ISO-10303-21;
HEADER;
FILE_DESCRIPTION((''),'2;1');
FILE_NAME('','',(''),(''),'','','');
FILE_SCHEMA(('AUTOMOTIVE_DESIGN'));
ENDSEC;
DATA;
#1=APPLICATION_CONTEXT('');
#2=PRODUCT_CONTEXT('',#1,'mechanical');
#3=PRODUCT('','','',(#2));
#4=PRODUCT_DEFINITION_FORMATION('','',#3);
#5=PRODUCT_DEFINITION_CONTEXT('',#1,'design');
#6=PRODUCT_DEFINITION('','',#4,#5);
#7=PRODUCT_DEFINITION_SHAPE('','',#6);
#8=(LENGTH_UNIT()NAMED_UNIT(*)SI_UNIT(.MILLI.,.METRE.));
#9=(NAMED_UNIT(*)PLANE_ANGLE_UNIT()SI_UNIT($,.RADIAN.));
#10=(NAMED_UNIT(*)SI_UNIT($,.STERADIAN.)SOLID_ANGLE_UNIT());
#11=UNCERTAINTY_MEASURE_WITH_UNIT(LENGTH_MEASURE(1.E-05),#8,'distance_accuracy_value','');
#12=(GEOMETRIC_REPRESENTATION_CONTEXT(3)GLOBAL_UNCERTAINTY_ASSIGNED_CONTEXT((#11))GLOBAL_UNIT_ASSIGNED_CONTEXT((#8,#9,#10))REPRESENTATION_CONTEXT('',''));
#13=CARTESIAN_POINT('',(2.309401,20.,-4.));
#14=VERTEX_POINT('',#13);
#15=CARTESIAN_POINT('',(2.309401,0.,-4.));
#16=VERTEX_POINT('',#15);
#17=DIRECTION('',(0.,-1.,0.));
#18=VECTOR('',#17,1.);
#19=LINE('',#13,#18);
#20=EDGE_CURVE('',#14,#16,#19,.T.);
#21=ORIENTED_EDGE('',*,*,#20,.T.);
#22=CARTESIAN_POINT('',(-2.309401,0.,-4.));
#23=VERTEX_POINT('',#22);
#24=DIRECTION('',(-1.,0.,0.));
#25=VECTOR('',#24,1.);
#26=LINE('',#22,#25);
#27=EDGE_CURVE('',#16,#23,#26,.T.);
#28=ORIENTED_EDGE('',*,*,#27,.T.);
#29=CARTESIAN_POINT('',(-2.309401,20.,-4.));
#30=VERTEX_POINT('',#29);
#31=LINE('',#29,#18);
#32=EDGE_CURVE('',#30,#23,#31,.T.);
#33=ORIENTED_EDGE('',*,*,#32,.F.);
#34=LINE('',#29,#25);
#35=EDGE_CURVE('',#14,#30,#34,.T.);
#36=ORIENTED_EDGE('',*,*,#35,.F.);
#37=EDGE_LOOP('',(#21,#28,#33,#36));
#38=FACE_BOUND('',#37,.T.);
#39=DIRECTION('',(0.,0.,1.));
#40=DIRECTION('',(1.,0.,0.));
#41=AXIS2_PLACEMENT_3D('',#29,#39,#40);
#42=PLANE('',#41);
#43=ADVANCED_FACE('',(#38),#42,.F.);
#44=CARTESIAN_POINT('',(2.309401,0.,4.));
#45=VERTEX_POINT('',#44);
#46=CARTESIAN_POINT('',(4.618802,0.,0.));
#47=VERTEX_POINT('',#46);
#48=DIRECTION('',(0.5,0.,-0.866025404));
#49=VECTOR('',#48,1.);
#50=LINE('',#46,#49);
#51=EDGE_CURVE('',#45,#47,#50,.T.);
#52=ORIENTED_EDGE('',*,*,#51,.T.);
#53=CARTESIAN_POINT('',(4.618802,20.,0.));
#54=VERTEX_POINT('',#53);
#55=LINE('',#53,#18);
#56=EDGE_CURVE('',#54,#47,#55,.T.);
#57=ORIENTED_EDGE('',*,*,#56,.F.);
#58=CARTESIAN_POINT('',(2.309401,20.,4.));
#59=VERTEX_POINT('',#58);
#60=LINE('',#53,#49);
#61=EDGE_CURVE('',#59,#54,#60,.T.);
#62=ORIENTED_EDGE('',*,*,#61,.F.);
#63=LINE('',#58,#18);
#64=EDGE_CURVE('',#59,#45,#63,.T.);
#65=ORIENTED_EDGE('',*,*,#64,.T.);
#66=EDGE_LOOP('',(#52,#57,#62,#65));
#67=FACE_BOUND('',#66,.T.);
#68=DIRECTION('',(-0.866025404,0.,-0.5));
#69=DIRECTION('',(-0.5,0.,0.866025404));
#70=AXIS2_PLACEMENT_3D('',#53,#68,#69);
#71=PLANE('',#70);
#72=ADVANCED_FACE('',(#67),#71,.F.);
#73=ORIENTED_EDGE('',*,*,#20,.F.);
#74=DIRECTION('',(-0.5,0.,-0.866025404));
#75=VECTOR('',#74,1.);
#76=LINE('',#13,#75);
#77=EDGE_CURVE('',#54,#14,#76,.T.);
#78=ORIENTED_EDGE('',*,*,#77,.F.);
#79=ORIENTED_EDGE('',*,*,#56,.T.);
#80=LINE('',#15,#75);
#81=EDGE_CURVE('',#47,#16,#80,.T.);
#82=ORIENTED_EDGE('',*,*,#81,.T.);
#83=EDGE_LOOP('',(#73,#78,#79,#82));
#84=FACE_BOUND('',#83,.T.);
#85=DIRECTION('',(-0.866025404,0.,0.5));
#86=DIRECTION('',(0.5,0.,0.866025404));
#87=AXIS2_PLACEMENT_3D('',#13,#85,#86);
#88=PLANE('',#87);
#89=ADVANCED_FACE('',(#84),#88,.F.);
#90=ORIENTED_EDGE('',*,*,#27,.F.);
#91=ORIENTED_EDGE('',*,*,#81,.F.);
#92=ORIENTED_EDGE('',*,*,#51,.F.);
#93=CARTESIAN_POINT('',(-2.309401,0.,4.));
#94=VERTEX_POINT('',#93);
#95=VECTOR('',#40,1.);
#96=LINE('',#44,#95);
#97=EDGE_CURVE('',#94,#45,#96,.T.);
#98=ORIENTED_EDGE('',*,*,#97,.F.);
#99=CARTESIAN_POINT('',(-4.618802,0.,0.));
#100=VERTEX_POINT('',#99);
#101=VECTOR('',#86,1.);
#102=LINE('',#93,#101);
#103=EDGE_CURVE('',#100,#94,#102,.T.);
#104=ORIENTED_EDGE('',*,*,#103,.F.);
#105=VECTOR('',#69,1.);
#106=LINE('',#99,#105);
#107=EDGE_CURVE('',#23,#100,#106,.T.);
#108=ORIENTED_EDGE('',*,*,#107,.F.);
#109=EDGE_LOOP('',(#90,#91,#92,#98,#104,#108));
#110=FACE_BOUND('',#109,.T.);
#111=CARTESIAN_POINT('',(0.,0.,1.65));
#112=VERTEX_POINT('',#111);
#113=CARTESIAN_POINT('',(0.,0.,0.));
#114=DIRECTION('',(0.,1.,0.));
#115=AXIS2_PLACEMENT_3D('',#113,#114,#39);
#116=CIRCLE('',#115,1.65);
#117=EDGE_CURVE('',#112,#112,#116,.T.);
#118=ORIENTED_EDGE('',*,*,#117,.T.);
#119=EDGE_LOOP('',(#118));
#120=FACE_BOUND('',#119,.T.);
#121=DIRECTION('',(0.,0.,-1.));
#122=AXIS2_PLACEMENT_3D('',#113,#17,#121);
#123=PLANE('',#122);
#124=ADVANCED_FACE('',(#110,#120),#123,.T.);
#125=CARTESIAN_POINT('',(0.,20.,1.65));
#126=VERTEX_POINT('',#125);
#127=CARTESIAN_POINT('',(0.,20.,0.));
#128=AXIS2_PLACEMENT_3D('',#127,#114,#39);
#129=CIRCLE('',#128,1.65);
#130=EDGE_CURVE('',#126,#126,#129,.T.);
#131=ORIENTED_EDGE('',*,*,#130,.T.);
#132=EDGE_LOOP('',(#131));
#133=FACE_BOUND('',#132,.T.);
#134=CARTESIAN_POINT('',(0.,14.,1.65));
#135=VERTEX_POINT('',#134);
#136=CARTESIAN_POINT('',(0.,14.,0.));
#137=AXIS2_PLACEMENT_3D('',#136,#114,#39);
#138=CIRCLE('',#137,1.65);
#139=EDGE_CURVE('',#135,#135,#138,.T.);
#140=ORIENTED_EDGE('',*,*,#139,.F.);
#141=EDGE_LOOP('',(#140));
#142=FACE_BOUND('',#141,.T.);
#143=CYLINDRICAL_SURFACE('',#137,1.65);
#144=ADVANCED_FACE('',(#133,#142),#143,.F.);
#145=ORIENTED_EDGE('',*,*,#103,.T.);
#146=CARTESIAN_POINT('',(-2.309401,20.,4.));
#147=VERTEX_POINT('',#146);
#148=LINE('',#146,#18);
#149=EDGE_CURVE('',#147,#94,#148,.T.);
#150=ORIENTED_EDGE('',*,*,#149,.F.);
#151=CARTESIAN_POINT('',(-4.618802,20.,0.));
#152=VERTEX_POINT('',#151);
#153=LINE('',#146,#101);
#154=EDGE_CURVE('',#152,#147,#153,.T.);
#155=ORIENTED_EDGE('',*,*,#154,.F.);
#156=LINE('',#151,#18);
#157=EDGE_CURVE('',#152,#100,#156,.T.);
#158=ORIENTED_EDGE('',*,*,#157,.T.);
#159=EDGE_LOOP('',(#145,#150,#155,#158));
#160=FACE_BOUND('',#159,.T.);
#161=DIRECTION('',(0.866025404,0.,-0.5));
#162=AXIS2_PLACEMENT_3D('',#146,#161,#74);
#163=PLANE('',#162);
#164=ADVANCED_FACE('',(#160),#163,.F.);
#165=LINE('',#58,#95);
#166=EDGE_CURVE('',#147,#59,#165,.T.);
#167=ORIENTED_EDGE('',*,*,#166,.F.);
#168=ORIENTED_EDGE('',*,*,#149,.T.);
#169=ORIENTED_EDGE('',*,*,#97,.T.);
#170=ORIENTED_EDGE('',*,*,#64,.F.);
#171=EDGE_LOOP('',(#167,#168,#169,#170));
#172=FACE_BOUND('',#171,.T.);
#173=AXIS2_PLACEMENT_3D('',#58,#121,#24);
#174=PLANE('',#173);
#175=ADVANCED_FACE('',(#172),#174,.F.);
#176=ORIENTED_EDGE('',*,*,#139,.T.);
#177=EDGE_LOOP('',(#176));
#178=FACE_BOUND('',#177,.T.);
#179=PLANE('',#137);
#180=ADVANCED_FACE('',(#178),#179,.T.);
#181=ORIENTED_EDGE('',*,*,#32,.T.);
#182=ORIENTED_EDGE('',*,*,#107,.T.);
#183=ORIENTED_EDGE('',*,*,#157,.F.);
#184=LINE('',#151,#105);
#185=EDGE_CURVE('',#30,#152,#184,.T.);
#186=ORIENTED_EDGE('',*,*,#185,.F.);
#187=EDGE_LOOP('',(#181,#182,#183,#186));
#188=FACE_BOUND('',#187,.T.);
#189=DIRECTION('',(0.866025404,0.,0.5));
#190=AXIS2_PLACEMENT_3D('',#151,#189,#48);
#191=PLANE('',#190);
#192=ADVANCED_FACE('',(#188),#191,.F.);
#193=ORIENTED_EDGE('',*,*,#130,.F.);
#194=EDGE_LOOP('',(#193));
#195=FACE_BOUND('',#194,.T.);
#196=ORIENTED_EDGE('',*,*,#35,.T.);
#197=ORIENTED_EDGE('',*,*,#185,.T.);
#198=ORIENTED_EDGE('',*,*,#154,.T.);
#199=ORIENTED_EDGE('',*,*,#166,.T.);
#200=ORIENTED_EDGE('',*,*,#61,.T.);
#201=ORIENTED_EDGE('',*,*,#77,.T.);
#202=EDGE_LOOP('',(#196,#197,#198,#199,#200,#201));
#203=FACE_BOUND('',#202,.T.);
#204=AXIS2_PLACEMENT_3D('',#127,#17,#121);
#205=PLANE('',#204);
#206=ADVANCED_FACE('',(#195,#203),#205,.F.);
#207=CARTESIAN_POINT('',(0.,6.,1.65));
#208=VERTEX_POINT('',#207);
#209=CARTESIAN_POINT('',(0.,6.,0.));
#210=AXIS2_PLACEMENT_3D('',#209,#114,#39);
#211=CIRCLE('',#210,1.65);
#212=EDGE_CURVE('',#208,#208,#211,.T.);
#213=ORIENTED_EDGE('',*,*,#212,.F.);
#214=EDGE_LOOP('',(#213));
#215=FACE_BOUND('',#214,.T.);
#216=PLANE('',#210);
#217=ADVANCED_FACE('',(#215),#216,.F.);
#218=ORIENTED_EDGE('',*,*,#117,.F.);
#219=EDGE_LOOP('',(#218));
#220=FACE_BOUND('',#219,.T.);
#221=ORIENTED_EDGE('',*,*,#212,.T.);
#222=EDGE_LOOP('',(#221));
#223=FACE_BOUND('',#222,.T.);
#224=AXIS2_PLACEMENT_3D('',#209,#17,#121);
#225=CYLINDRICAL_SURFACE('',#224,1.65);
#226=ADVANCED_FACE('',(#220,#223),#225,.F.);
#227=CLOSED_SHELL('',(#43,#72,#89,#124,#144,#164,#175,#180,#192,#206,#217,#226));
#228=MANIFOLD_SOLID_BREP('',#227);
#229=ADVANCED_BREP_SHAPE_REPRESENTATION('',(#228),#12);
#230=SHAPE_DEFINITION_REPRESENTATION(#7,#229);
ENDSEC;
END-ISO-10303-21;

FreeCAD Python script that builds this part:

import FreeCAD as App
import Part
import Sketcher
from FreeCAD import Vector
Q = App.Units.Quantity


def add_polygon(sketch, points):
    """Adds a closed chain of lines whose ends are joined by coincident constraints."""
    first, n = sketch.GeometryCount, len(points)
    for a, b in zip(points, points[1:] + points[:1]):
        sketch.addGeometry(Part.LineSegment(App.Vector(*a, 0), App.Vector(*b, 0)), False)
    for i in range(n):
        sketch.addConstraint(Sketcher.Constraint("Coincident", first + i, 2, first + (i + 1) % n, 1))

doc = App.newDocument("Part")
body = doc.addObject("PartDesign::Body", "Body")

# Sketch on XZ plane
sketch1 = doc.addObject("Sketcher::SketchObject", "Sketch")
body.addObject(sketch1)
sketch1.AttachmentSupport = (doc.XZ_Plane, [""])
sketch1.MapMode = "FlatFace"
add_polygon(sketch1, [(2.309401, 4), (4.618802, 0), (2.309401, -4), (-2.309401, -4), (-4.618802, 0), (-2.309401, 4)])  # lines 0-5
sketch1.addConstraint(Sketcher.Constraint("Horizontal", 2))
sketch1.addConstraint(Sketcher.Constraint("Horizontal", 5))
sketch1.addConstraint(Sketcher.Constraint("Symmetric", 0, 2, 3, 2, -1, 1))
sketch1.addConstraint(Sketcher.Constraint("Symmetric", 1, 2, 4, 2, -1, 1))
sketch1.addConstraint(Sketcher.Constraint("PointOnObject", 0, 2, -1))
sketch1.addConstraint(Sketcher.Constraint("Parallel", 0, 3))
sketch1.addConstraint(Sketcher.Constraint("Vertical", 2, 2, 4, 2))
sketch1.addConstraint(Sketcher.Constraint("Angle", 0, Q("-60 deg")))
sketch1.addConstraint(Sketcher.Constraint("DistanceY", 1, 2, -1, 1, 4.0))
sketch1.addConstraint(Sketcher.Constraint("DistanceX", -1, 1, 1, 2, 2.309401))
pad1 = doc.addObject("PartDesign::Pad", "Pad")
body.addObject(pad1)
pad1.Profile = sketch1
pad1.Length = 20
pad1.Reversed = True

# Sketch on XZ plane
sketch2 = doc.addObject("Sketcher::SketchObject", "Sketch001")
body.addObject(sketch2)
sketch2.AttachmentSupport = (doc.XZ_Plane, [""])
sketch2.MapMode = "FlatFace"
sketch2.addGeometry(Part.Circle(Vector(0, 0, 0), Vector(0, 0, 1), 1.65), False)
sketch2.addConstraint(Sketcher.Constraint("Coincident", 0, 3, -1, 1))
sketch2.addConstraint(Sketcher.Constraint("Diameter", 0, 3.3))
pocket1 = doc.addObject("PartDesign::Pocket", "Pocket")
body.addObject(pocket1)
pocket1.Profile = sketch2
pocket1.Length = 6

# Sketch on XZ plane
sketch3 = doc.addObject("Sketcher::SketchObject", "Sketch002")
body.addObject(sketch3)
sketch3.AttachmentSupport = (doc.XZ_Plane, [""])
sketch3.MapMode = "FlatFace"
sketch3.AttachmentOffset = App.Placement(Vector(0, 0, -14), App.Rotation())
sketch3.addGeometry(Part.Circle(Vector(0, 0, 0), Vector(0, 0, 1), 1.65), False)
sketch3.addConstraint(Sketcher.Constraint("Coincident", 0, 3, -1, 1))
sketch3.addConstraint(Sketcher.Constraint("Diameter", 0, 3.3))
pocket2 = doc.addObject("PartDesign::Pocket", "Pocket001")
body.addObject(pocket2)
pocket2.Profile = sketch3
pocket2.Length = 6

doc.recompute()
